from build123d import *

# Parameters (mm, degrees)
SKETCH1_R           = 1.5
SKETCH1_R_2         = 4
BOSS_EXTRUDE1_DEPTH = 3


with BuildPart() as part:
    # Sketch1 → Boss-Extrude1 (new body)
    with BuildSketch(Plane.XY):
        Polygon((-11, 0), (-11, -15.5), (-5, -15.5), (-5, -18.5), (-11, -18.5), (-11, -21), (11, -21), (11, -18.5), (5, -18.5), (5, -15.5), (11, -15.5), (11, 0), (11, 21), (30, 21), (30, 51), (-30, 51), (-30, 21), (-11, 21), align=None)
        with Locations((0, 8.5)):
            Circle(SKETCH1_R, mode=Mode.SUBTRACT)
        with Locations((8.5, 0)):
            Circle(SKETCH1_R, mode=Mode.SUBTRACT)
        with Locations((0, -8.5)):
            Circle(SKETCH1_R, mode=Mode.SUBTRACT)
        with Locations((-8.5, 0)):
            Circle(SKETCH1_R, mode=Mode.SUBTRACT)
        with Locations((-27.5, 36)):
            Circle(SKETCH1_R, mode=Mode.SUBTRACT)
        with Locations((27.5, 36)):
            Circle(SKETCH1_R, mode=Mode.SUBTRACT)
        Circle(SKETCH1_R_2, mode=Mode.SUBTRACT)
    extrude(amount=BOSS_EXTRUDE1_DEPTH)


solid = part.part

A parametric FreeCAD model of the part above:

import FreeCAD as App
import Part
import Sketcher

V = App.Vector


def add_polygon(sketch, points):
    """Adds a closed chain of lines whose ends are joined by coincident constraints."""
    first, n = sketch.GeometryCount, len(points)
    for a, b in zip(points, points[1:] + points[:1]):
        sketch.addGeometry(Part.LineSegment(App.Vector(*a, 0), App.Vector(*b, 0)), False)
    for i in range(n):
        sketch.addConstraint(Sketcher.Constraint("Coincident", first + i, 2, first + (i + 1) % n, 1))

doc = App.newDocument("Part")
body = doc.addObject("PartDesign::Body", "Body")

sketch1 = body.newObject("Sketcher::SketchObject", "Sketch")
sketch1.AttachmentSupport = (doc.getObject("XY_Plane"), [""])
sketch1.MapMode = "FlatFace"
add_polygon(sketch1, [(-11, -15.5), (-5, -15.5), (-5, -18.5), (-11, -18.5), (-11, -21), (11, -21), (11, -18.5), (5, -18.5), (5, -15.5), (11, -15.5), (11, 21), (30, 21), (30, 51), (-30, 51), (-30, 21), (-11, 21)])
sketch1.addGeometry(Part.Circle(V(-8.5, 0, 0), V(0, 0, 1), 1.5), False)
sketch1.addGeometry(Part.Circle(V(0, -8.5, 0), V(0, 0, 1), 1.5), False)
sketch1.addGeometry(Part.Circle(V(0, 0, 0), V(0, 0, 1), 4), False)
sketch1.addGeometry(Part.Circle(V(8.5, 0, 0), V(0, 0, 1), 1.5), False)
sketch1.addGeometry(Part.Circle(V(0, 8.5, 0), V(0, 0, 1), 1.5), False)
sketch1.addGeometry(Part.Circle(V(-27.5, 36, 0), V(0, 0, 1), 1.5), False)
sketch1.addGeometry(Part.Circle(V(27.5, 36, 0), V(0, 0, 1), 1.5), False)
sketch1.addConstraint([
    Sketcher.Constraint("Horizontal", 0),
    Sketcher.Constraint("Vertical", 1),
    Sketcher.Constraint("Horizontal", 2),
    Sketcher.Constraint("Vertical", 3),
    Sketcher.Constraint("Horizontal", 4),
    Sketcher.Constraint("Vertical", 5),
    Sketcher.Constraint("Horizontal", 6),
    Sketcher.Constraint("Vertical", 7),
    Sketcher.Constraint("Horizontal", 8),
    Sketcher.Constraint("Vertical", 9),
    Sketcher.Constraint("Horizontal", 10),
    Sketcher.Constraint("Vertical", 11),
    Sketcher.Constraint("Horizontal", 12),
    Sketcher.Constraint("Vertical", 13),
    Sketcher.Constraint("Horizontal", 14),
    Sketcher.Constraint("Vertical", 15),
    Sketcher.Constraint("Coincident", 18, 3, -1, 1),
    Sketcher.Constraint("Equal", 16, 17),
    Sketcher.Constraint("Equal", 17, 19),
    Sketcher.Constraint("Equal", 19, 20),
    Sketcher.Constraint("Equal", 20, 21),
    Sketcher.Constraint("Equal", 21, 22),
    Sketcher.Constraint("Symmetric", 16, 3, 19, 3, -1, 1),
    Sketcher.Constraint("Symmetric", 17, 3, 20, 3, -1, 1),
    Sketcher.Constraint("Symmetric", 3, 2, 9, 2, -1, 1),
    Sketcher.Constraint("Symmetric", 4, 2, 14, 2, -1, 1),
    Sketcher.Constraint("Symmetric", 21, 3, 22, 3, -2),
    Sketcher.Constraint("Symmetric", 2, 2, 5, 2, -2),
    Sketcher.Constraint("Symmetric", 0, 2, 7, 2, -2),
    Sketcher.Constraint("PointOnObject", 16, 3, -1),
    Sketcher.Constraint("PointOnObject", 17, 3, -2),
    Sketcher.Constraint("Equal", 10, 14),
    Sketcher.Constraint("Diameter", 16, 3.0),
    Sketcher.Constraint("Diameter", 18, 8.0),
    Sketcher.Constraint("DistanceX", 0, 1, 0, 2, 6.0),
    Sketcher.Constraint("DistanceX", 4, 1, 4, 2, 22.0),
    Sketcher.Constraint("DistanceX", 10, 1, 10, 2, 19.0),
    Sketcher.Constraint("DistanceY", 1, 2, 1, 1, 3.0),
    Sketcher.Constraint("DistanceY", 11, 1, 11, 2, 30.0),
    Sketcher.Constraint("DistanceY", 3, 2, 3, 1, 2.5),
    Sketcher.Constraint("DistanceY", 9, 1, 9, 2, 36.5),
    Sketcher.Constraint("DistanceY", -1, 1, 21, 3, 36.0),
    Sketcher.Constraint("DistanceX", 16, 3, 19, 3, 17.0),
    Sketcher.Constraint("DistanceY", 17, 3, 20, 3, 17.0),
    Sketcher.Constraint("DistanceX", 21, 3, 16, 3, 19.0),
])
pad1 = body.newObject("PartDesign::Pad", "Pad")
pad1.Profile = sketch1
pad1.Length = 3

doc.recompute()
